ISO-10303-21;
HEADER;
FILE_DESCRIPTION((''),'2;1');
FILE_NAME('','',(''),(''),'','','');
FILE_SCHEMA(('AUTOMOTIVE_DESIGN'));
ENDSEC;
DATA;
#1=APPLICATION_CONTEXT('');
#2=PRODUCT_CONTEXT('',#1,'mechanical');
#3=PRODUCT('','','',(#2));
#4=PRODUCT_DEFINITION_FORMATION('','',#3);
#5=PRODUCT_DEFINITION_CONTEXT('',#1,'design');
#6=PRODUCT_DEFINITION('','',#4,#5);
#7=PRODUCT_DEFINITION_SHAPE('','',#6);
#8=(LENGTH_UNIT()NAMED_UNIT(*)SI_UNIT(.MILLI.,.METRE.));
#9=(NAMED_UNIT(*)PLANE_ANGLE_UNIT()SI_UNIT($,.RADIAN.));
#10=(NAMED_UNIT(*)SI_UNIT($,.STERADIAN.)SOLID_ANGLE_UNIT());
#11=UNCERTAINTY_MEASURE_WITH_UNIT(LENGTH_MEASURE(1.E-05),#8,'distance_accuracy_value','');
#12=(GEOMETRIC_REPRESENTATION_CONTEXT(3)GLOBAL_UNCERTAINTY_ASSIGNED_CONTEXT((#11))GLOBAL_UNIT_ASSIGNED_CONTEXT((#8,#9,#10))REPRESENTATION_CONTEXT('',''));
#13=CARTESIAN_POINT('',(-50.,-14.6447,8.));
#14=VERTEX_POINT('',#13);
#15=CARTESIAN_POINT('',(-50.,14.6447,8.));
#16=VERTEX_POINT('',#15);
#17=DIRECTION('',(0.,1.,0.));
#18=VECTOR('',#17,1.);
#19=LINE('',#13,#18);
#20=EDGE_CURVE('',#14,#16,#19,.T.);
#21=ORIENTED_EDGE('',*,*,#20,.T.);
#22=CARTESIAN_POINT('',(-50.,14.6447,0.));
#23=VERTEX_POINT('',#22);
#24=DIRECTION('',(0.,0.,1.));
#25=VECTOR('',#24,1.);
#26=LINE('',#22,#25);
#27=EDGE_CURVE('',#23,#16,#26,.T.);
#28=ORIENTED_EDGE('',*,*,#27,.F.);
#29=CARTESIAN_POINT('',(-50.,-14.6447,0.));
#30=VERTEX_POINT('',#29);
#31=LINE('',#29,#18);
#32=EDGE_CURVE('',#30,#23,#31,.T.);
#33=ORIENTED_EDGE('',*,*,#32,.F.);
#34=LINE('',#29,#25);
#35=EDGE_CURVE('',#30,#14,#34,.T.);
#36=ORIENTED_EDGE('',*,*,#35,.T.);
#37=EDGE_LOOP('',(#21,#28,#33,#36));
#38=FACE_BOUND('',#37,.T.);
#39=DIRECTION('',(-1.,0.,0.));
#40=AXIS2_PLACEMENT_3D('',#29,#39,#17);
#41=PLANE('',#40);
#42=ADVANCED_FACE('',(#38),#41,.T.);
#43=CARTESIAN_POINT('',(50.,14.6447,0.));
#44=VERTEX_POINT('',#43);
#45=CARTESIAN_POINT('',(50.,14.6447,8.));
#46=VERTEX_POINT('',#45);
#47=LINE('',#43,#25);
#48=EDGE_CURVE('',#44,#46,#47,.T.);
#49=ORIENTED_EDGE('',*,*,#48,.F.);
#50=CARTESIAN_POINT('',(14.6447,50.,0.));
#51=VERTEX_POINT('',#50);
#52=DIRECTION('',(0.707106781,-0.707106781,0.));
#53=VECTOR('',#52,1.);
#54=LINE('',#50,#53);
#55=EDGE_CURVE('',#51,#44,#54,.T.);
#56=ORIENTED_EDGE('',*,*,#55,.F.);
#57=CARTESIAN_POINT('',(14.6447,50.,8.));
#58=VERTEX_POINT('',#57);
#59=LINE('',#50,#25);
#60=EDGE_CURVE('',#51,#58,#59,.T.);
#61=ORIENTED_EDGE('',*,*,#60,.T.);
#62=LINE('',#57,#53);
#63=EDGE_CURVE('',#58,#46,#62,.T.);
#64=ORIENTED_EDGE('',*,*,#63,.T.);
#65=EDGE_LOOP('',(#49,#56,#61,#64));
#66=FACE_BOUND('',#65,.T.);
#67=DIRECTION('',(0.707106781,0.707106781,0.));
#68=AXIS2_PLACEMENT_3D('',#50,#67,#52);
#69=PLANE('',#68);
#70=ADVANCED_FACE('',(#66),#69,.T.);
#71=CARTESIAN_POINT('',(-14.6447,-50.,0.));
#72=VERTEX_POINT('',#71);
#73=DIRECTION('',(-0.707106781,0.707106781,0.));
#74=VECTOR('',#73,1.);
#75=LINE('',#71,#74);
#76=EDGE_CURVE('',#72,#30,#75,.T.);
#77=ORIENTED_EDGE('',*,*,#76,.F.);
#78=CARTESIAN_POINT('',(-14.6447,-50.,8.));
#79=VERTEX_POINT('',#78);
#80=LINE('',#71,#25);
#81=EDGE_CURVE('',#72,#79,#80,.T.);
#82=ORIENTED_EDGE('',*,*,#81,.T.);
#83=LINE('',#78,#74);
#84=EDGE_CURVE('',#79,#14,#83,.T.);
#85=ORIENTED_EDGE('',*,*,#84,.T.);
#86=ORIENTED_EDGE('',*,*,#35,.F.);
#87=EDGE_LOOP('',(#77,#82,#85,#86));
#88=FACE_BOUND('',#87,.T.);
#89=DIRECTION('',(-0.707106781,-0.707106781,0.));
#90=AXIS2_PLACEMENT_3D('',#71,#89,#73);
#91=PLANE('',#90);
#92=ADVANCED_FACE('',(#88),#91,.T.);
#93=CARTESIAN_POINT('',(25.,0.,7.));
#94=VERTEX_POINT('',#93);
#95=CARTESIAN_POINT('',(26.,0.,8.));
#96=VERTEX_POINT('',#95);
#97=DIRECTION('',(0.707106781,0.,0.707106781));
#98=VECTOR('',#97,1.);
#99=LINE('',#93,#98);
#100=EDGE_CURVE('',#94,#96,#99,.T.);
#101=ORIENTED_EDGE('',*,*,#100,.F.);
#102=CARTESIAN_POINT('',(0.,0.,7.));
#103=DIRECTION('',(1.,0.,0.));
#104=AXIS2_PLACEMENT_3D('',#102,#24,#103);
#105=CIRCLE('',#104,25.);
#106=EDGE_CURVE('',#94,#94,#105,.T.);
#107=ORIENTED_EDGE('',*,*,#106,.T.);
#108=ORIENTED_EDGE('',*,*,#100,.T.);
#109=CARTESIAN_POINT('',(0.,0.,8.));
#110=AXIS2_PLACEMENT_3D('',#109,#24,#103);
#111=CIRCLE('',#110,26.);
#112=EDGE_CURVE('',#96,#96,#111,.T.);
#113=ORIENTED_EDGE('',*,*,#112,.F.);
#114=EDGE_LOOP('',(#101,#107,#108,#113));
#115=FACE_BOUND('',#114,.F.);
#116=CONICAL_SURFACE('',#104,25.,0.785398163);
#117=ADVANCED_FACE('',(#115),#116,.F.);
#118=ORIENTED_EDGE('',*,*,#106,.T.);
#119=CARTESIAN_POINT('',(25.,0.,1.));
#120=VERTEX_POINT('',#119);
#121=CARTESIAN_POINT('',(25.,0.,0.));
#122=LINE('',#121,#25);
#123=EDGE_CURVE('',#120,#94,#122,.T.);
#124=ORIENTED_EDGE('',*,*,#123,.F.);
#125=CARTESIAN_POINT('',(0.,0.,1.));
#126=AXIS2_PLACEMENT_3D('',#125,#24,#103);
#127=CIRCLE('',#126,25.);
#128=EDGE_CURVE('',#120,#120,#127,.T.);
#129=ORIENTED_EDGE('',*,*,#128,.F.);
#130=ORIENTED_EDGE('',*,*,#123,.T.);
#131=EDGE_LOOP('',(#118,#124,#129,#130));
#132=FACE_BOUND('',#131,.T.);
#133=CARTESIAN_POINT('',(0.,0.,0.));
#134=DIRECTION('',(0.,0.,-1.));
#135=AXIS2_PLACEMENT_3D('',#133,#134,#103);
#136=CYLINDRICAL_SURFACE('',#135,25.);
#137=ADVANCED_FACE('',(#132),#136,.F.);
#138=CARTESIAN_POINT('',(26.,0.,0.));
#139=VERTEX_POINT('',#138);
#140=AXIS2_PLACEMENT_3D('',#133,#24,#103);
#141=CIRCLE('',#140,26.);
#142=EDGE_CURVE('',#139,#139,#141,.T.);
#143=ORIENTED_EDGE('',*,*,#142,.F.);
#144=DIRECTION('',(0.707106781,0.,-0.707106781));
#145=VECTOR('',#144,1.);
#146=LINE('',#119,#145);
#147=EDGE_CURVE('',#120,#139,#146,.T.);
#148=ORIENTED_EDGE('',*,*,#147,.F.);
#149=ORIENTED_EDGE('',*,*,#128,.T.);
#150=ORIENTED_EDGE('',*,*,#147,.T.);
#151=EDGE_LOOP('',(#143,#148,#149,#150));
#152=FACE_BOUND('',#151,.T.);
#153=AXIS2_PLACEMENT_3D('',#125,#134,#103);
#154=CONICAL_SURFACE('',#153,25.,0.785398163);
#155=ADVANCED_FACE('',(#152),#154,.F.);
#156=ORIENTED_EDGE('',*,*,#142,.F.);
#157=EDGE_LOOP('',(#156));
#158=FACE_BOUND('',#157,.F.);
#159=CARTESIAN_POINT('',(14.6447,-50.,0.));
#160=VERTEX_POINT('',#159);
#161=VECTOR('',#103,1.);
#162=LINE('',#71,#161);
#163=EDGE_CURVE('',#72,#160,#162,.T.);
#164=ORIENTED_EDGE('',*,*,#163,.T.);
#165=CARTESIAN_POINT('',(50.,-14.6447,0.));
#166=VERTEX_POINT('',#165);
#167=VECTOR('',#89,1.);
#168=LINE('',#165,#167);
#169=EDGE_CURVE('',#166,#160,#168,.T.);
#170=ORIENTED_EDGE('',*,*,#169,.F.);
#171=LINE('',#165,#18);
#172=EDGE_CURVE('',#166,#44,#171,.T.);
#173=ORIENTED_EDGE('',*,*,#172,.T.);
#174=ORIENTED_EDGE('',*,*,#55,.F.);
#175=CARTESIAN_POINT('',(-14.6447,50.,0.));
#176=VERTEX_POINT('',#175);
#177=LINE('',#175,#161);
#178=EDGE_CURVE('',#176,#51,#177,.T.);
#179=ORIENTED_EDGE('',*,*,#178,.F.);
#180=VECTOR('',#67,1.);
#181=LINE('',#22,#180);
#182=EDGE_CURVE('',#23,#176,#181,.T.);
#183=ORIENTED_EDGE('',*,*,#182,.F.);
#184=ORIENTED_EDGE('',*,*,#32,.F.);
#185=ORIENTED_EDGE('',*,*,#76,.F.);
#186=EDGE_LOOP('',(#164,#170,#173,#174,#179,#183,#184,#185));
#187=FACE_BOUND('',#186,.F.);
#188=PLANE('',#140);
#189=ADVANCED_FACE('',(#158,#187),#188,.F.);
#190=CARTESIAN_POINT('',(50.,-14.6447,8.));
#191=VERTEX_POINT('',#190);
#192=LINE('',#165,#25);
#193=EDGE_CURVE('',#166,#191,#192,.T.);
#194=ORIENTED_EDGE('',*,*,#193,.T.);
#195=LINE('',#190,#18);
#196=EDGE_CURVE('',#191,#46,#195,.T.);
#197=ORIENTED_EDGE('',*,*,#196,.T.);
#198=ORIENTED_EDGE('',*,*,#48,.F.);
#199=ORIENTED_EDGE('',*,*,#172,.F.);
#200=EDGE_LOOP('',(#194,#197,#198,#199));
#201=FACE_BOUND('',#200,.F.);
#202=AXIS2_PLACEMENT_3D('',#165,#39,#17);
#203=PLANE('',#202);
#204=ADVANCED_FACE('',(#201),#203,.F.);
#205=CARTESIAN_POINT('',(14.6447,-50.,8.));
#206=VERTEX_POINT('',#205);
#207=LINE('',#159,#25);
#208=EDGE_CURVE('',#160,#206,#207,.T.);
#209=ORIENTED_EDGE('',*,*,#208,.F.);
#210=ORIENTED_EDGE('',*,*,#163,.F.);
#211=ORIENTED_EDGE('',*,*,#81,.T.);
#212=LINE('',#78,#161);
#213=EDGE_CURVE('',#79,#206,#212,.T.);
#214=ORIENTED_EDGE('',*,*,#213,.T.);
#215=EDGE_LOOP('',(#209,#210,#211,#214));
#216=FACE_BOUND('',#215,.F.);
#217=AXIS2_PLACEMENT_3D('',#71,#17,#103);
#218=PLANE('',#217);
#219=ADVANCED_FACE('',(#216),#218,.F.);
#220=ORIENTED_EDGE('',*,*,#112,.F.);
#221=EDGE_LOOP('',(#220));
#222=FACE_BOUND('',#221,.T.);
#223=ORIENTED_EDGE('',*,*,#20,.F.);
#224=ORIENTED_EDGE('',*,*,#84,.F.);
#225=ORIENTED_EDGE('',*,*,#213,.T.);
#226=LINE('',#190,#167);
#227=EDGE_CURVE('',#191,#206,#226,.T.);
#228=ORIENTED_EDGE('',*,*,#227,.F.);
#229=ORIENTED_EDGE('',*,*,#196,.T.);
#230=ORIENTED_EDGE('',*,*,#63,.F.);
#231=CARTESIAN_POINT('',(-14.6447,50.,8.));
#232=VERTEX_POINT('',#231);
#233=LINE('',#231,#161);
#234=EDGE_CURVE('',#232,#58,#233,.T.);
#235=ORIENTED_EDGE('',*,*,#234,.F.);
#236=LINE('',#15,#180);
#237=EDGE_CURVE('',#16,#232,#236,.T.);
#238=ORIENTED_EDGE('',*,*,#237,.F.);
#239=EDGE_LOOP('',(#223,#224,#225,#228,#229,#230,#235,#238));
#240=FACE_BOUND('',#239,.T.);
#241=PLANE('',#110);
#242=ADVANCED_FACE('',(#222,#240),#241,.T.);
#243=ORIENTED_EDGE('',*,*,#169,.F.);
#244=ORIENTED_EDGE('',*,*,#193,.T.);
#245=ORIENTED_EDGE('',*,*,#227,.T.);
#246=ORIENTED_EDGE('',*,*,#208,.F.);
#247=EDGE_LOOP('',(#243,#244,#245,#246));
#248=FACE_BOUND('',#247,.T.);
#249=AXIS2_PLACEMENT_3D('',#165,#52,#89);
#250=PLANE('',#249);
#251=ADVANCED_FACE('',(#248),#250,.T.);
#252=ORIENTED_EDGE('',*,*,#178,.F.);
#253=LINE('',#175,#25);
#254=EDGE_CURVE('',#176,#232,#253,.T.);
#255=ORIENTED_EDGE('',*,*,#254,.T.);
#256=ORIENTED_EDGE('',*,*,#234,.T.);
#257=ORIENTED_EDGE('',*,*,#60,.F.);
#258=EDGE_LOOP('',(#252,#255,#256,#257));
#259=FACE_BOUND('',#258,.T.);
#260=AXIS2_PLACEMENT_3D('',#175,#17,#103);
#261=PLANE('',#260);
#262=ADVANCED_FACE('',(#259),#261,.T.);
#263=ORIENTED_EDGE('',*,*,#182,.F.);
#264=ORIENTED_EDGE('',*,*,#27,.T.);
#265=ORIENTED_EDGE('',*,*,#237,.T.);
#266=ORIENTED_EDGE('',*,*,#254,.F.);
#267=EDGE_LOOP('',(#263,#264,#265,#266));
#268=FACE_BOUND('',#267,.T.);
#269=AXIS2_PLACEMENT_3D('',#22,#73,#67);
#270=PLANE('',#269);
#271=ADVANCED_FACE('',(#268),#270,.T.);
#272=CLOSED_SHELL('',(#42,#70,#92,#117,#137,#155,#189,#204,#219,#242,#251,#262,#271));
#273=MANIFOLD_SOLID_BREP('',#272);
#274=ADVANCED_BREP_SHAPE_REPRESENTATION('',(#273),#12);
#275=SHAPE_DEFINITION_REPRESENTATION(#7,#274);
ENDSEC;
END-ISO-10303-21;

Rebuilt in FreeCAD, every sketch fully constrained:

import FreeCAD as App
import Part
import Sketcher
from FreeCAD import Vector


def edges_at(feature, points):
    """Names of the edges that pass closest to the given points."""
    edges = feature.Shape.Edges
    near = lambda p: min(range(len(edges)), key=lambda i: edges[i].distToShape(Part.Vertex(*p))[0])
    return sorted({f"Edge{near(p) + 1}" for p in points})

doc = App.newDocument("Part")
body = doc.addObject("PartDesign::Body", "Body")

sketch1 = doc.addObject("Sketcher::SketchObject", "Sketch")
body.addObject(sketch1)
sketch1.AttachmentSupport = (doc.XY_Plane, [""])
sketch1.MapMode = "FlatFace"
sketch1.addGeometry([
    Part.LineSegment(Vector(-14.6447, 50, 0), Vector(-50, 14.6447, 0)),
    Part.LineSegment(Vector(-50, 14.6447, 0), Vector(-50, -14.6447, 0)),
    Part.LineSegment(Vector(-50, -14.6447, 0), Vector(-14.6447, -50, 0)),
    Part.LineSegment(Vector(-14.6447, -50, 0), Vector(14.6447, -50, 0)),
    Part.LineSegment(Vector(14.6447, -50, 0), Vector(50, -14.6447, 0)),
    Part.LineSegment(Vector(50, -14.6447, 0), Vector(50, 14.6447, 0)),
    Part.LineSegment(Vector(50, 14.6447, 0), Vector(14.6447, 50, 0)),
    Part.LineSegment(Vector(14.6447, 50, 0), Vector(-14.6447, 50, 0)),
    Part.Circle(Vector(0, 0, 0), Vector(0, 0, 1), 25),
], False)
sketch1.addConstraint([
    Sketcher.Constraint("Coincident", 0, 2, 1, 1),
    Sketcher.Constraint("Coincident", 1, 2, 2, 1),
    Sketcher.Constraint("Coincident", 2, 2, 3, 1),
    Sketcher.Constraint("Coincident", 3, 2, 4, 1),
    Sketcher.Constraint("Coincident", 4, 2, 5, 1),
    Sketcher.Constraint("Coincident", 5, 2, 6, 1),
    Sketcher.Constraint("Coincident", 6, 2, 7, 1),
    Sketcher.Constraint("Coincident", 7, 2, 0, 1),
    Sketcher.Constraint("Vertical", 1),
    Sketcher.Constraint("Horizontal", 3),
    Sketcher.Constraint("Vertical", 5),
    Sketcher.Constraint("Horizontal", 7),
    Sketcher.Constraint("Coincident", 8, 3, -1, 1),
    Sketcher.Constraint("Symmetric", 0, 2, 4, 2, -1, 1),
    Sketcher.Constraint("Symmetric", 2, 2, 6, 2, -1, 1),
    Sketcher.Constraint("Perpendicular", 0, 2),
    Sketcher.Constraint("Perpendicular", 2, 4),
    Sketcher.Constraint("Perpendicular", 4, 6),
    Sketcher.Constraint("Horizontal", 1, 2, 4, 2),
    Sketcher.Constraint("Vertical", 3, 2, 6, 2),
    Sketcher.Constraint("Equal", 7, 1),
    Sketcher.Constraint("Diameter", 8, 50.0),
    Sketcher.Constraint("Distance", 0, 50.0),
    Sketcher.Constraint("DistanceX", 0, 2, -1, 1, 50.0),
])
pad1 = doc.addObject("PartDesign::Pad", "Pad")
body.addObject(pad1)
pad1.Profile = sketch1
pad1.Length = 8
doc.recompute()

chamfer = doc.addObject("PartDesign::Chamfer", "Chamfer")
body.addObject(chamfer)
chamfer.Base = (pad1, edges_at(pad1, [(-25, 0, 8), (-25, 0, 0)]))
chamfer.Size = 1

doc.recompute()
